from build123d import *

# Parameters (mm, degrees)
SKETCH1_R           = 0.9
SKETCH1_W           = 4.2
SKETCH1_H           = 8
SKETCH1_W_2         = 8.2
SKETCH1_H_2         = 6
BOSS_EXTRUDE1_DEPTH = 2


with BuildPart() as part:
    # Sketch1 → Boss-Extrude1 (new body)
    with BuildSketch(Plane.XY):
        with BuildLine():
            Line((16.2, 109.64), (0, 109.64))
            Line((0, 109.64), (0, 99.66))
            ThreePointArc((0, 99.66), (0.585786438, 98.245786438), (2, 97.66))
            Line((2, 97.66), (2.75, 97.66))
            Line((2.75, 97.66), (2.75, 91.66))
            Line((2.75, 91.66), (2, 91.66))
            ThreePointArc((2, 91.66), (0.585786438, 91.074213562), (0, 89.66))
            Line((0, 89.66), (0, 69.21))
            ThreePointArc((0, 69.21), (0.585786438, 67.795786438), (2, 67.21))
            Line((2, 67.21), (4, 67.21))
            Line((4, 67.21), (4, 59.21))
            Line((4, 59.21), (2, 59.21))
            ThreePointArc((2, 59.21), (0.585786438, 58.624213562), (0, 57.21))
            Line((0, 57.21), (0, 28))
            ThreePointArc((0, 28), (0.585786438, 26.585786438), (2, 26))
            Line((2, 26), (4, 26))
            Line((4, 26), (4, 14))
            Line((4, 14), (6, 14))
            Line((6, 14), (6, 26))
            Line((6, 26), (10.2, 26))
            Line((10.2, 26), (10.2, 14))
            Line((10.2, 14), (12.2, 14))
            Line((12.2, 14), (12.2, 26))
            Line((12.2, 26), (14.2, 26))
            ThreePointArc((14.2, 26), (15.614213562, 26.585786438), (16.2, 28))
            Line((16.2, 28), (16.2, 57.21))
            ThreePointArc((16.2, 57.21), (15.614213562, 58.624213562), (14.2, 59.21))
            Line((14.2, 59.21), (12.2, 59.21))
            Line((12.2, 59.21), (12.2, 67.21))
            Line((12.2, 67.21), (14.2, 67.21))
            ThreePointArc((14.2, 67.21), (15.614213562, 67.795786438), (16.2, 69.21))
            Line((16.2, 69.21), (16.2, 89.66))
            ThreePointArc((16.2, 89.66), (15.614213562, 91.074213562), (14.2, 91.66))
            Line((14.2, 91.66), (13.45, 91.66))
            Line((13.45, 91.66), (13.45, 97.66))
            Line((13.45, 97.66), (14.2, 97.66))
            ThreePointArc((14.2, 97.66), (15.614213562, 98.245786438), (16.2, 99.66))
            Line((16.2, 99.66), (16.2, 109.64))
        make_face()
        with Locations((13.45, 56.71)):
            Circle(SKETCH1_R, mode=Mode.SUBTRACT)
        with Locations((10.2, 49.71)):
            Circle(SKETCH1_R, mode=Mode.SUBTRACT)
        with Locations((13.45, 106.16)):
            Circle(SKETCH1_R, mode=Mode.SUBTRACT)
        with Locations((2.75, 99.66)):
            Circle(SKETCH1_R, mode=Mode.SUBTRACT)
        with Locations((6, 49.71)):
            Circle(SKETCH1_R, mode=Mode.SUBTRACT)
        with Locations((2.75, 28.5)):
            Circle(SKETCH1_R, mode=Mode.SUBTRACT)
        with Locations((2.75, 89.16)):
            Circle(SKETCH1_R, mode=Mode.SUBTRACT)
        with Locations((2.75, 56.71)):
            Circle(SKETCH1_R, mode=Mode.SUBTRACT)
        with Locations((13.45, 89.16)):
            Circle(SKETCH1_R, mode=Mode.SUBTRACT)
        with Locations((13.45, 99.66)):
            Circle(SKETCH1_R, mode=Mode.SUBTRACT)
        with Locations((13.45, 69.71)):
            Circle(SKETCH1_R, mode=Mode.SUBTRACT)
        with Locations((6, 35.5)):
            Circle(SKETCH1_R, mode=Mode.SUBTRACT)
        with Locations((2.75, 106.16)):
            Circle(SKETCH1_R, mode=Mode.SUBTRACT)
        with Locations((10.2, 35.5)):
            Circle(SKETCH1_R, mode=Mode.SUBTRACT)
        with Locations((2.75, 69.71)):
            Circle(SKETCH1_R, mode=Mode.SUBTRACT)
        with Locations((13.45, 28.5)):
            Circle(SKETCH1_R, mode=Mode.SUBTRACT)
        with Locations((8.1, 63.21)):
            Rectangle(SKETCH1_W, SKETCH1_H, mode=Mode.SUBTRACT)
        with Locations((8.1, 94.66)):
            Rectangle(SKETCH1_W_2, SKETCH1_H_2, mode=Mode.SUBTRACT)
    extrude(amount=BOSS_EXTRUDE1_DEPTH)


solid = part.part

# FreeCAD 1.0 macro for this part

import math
import FreeCAD as App
import Part
import Sketcher
from FreeCAD import Vector
Q = App.Units.Quantity


def add_polygon(sketch, points):
    """Adds a closed chain of lines whose ends are joined by coincident constraints."""
    first, n = sketch.GeometryCount, len(points)
    for a, b in zip(points, points[1:] + points[:1]):
        sketch.addGeometry(Part.LineSegment(App.Vector(*a, 0), App.Vector(*b, 0)), False)
    for i in range(n):
        sketch.addConstraint(Sketcher.Constraint("Coincident", first + i, 2, first + (i + 1) % n, 1))

doc = App.newDocument("Part")
params = doc.addObject("Spreadsheet::Sheet", "Params")
for row, (alias, value) in enumerate([
    ("sketch1_radius", "2 mm"),
    ("sketch1_diameter", "1.8 mm"),
    ("sketch1_width", "2 mm"),
    ("sketch1_height", "6 mm"),
    ("sketch1_height2", "8 mm"),
    ("pad1_length", "2 mm"),
], start=1):
    params.set(f"A{row}", alias)
    params.set(f"B{row}", "=" + value)
    params.setAlias(f"B{row}", alias)

body = doc.addObject("PartDesign::Body", "Body")

# Sketch on XY plane
sketch1 = body.newObject("Sketcher::SketchObject", "Sketch")
sketch1.AttachmentSupport = (doc.getObject("XY_Plane"), [""])
sketch1.MapMode = "FlatFace"
sketch1.addGeometry(Part.LineSegment(Vector(16.2, 109.6, 0), Vector(0, 109.6, 0)), False)  # 0
sketch1.addGeometry(Part.LineSegment(Vector(0, 109.6, 0), Vector(0, 99.7, 0)), False)  # 1
sketch1.addGeometry(Part.ArcOfCircle(Part.Circle(Vector(2, 99.7, 0), Vector(0, 0, 1), 2), math.radians(-180), math.radians(-90)), False)  # 2
sketch1.addGeometry(Part.LineSegment(Vector(2, 97.7, 0), Vector(2.8, 97.7, 0)), False)  # 3
sketch1.addGeometry(Part.LineSegment(Vector(2.8, 97.7, 0), Vector(2.8, 91.7, 0)), False)  # 4
sketch1.addGeometry(Part.LineSegment(Vector(2.8, 91.7, 0), Vector(2, 91.7, 0)), False)  # 5
sketch1.addGeometry(Part.ArcOfCircle(Part.Circle(Vector(2, 89.7, 0), Vector(0, 0, 1), 2), math.radians(90), math.radians(180)), False)  # 6
sketch1.addGeometry(Part.LineSegment(Vector(0, 89.7, 0), Vector(0, 69.2, 0)), False)  # 7
sketch1.addGeometry(Part.ArcOfCircle(Part.Circle(Vector(2, 69.2, 0), Vector(0, 0, 1), 2), math.radians(-180), math.radians(-90)), False)  # 8
sketch1.addGeometry(Part.LineSegment(Vector(2, 67.2, 0), Vector(4, 67.2, 0)), False)  # 9
sketch1.addGeometry(Part.LineSegment(Vector(4, 67.2, 0), Vector(4, 59.2, 0)), False)  # 10
sketch1.addGeometry(Part.LineSegment(Vector(4, 59.2, 0), Vector(2, 59.2, 0)), False)  # 11
sketch1.addGeometry(Part.ArcOfCircle(Part.Circle(Vector(2, 57.2, 0), Vector(0, 0, 1), 2), math.radians(90), math.radians(180)), False)  # 12
sketch1.addGeometry(Part.LineSegment(Vector(0, 57.2, 0), Vector(0, 28, 0)), False)  # 13
sketch1.addGeometry(Part.ArcOfCircle(Part.Circle(Vector(2, 28, 0), Vector(0, 0, 1), 2), math.radians(-180), math.radians(-90)), False)  # 14
sketch1.addGeometry(Part.LineSegment(Vector(2, 26, 0), Vector(4, 26, 0)), False)  # 15
sketch1.addGeometry(Part.LineSegment(Vector(4, 26, 0), Vector(4, 14, 0)), False)  # 16
sketch1.addGeometry(Part.LineSegment(Vector(4, 14, 0), Vector(6, 14, 0)), False)  # 17
sketch1.addGeometry(Part.LineSegment(Vector(6, 14, 0), Vector(6, 26, 0)), False)  # 18
sketch1.addGeometry(Part.LineSegment(Vector(6, 26, 0), Vector(10.2, 26, 0)), False)  # 19
sketch1.addGeometry(Part.LineSegment(Vector(10.2, 26, 0), Vector(10.2, 14, 0)), False)  # 20
sketch1.addGeometry(Part.LineSegment(Vector(10.2, 14, 0), Vector(12.2, 14, 0)), False)  # 21
sketch1.addGeometry(Part.LineSegment(Vector(12.2, 14, 0), Vector(12.2, 26, 0)), False)  # 22
sketch1.addGeometry(Part.LineSegment(Vector(12.2, 26, 0), Vector(14.2, 26, 0)), False)  # 23
sketch1.addGeometry(Part.ArcOfCircle(Part.Circle(Vector(14.2, 28, 0), Vector(0, 0, 1), 2), math.radians(-90), math.radians(0)), False)  # 24
sketch1.addGeometry(Part.LineSegment(Vector(16.2, 28, 0), Vector(16.2, 57.2, 0)), False)  # 25
sketch1.addGeometry(Part.ArcOfCircle(Part.Circle(Vector(14.2, 57.2, 0), Vector(0, 0, 1), 2), math.radians(0), math.radians(90)), False)  # 26
sketch1.addGeometry(Part.LineSegment(Vector(14.2, 59.2, 0), Vector(12.2, 59.2, 0)), False)  # 27
sketch1.addGeometry(Part.LineSegment(Vector(12.2, 59.2, 0), Vector(12.2, 67.2, 0)), False)  # 28
sketch1.addGeometry(Part.LineSegment(Vector(12.2, 67.2, 0), Vector(14.2, 67.2, 0)), False)  # 29
sketch1.addGeometry(Part.ArcOfCircle(Part.Circle(Vector(14.2, 69.2, 0), Vector(0, 0, 1), 2), math.radians(-90), math.radians(0)), False)  # 30
sketch1.addGeometry(Part.LineSegment(Vector(16.2, 69.2, 0), Vector(16.2, 89.7, 0)), False)  # 31
sketch1.addGeometry(Part.ArcOfCircle(Part.Circle(Vector(14.2, 89.7, 0), Vector(0, 0, 1), 2), math.radians(0), math.radians(90)), False)  # 32
sketch1.addGeometry(Part.LineSegment(Vector(14.2, 91.7, 0), Vector(13.4, 91.7, 0)), False)  # 33
sketch1.addGeometry(Part.LineSegment(Vector(13.4, 91.7, 0), Vector(13.4, 97.7, 0)), False)  # 34
sketch1.addGeometry(Part.LineSegment(Vector(13.4, 97.7, 0), Vector(14.2, 97.7, 0)), False)  # 35
sketch1.addGeometry(Part.ArcOfCircle(Part.Circle(Vector(14.2, 99.7, 0), Vector(0, 0, 1), 2), math.radians(-90), math.radians(0)), False)  # 36
sketch1.addGeometry(Part.LineSegment(Vector(16.2, 99.7, 0), Vector(16.2, 109.6, 0)), False)  # 37
sketch1.addGeometry(Part.Circle(Vector(2.8, 28.5, 0), Vector(0, 0, 1), 0.9), False)  # 38
sketch1.addGeometry(Part.Circle(Vector(6, 35.5, 0), Vector(0, 0, 1), 0.9), False)  # 39
sketch1.addGeometry(Part.Circle(Vector(2.8, 56.7, 0), Vector(0, 0, 1), 0.9), False)  # 40
sketch1.addGeometry(Part.Circle(Vector(6, 49.7, 0), Vector(0, 0, 1), 0.9), False)  # 41
sketch1.addGeometry(Part.Circle(Vector(10.2, 35.5, 0), Vector(0, 0, 1), 0.9), False)  # 42
sketch1.addGeometry(Part.Circle(Vector(13.4, 28.5, 0), Vector(0, 0, 1), 0.9), False)  # 43
sketch1.addGeometry(Part.Circle(Vector(10.2, 49.7, 0), Vector(0, 0, 1), 0.9), False)  # 44
add_polygon(sketch1, [(10.2, 59.2), (6, 59.2), (6, 67.2), (10.2, 67.2)])  # lines 45-48
sketch1.addGeometry(Part.Circle(Vector(13.4, 56.7, 0), Vector(0, 0, 1), 0.9), False)  # 49
sketch1.addGeometry(Part.Circle(Vector(2.8, 69.7, 0), Vector(0, 0, 1), 0.9), False)  # 50
sketch1.addGeometry(Part.Circle(Vector(2.8, 89.2, 0), Vector(0, 0, 1), 0.9), False)  # 51
sketch1.addGeometry(Part.Circle(Vector(2.8, 99.7, 0), Vector(0, 0, 1), 0.9), False)  # 52
sketch1.addGeometry(Part.Circle(Vector(2.8, 106.2, 0), Vector(0, 0, 1), 0.9), False)  # 53
sketch1.addGeometry(Part.Circle(Vector(13.4, 69.7, 0), Vector(0, 0, 1), 0.9), False)  # 54
add_polygon(sketch1, [(12.2, 91.7), (4, 91.7), (4, 97.7), (12.2, 97.7)])  # lines 55-58
sketch1.addGeometry(Part.Circle(Vector(13.4, 89.2, 0), Vector(0, 0, 1), 0.9), False)  # 59
sketch1.addGeometry(Part.Circle(Vector(13.4, 99.7, 0), Vector(0, 0, 1), 0.9), False)  # 60
sketch1.addGeometry(Part.Circle(Vector(13.4, 106.2, 0), Vector(0, 0, 1), 0.9), False)  # 61
sketch1.addConstraint([
    Sketcher.Constraint("Coincident", 0, 2, 1, 1),
    Sketcher.Constraint("Tangent", 1, 2, 2, 1),
    Sketcher.Constraint("Tangent", 2, 2, 3, 1),
    Sketcher.Constraint("Coincident", 3, 2, 4, 1),
    Sketcher.Constraint("Coincident", 4, 2, 5, 1),
    Sketcher.Constraint("Tangent", 5, 2, 6, 1),
    Sketcher.Constraint("Tangent", 6, 2, 7, 1),
    Sketcher.Constraint("Tangent", 7, 2, 8, 1),
    Sketcher.Constraint("Tangent", 8, 2, 9, 1),
    Sketcher.Constraint("Coincident", 9, 2, 10, 1),
    Sketcher.Constraint("Coincident", 10, 2, 11, 1),
    Sketcher.Constraint("Tangent", 11, 2, 12, 1),
    Sketcher.Constraint("Tangent", 12, 2, 13, 1),
    Sketcher.Constraint("Tangent", 13, 2, 14, 1),
    Sketcher.Constraint("Tangent", 14, 2, 15, 1),
    Sketcher.Constraint("Coincident", 15, 2, 16, 1),
    Sketcher.Constraint("Coincident", 16, 2, 17, 1),
    Sketcher.Constraint("Coincident", 17, 2, 18, 1),
    Sketcher.Constraint("Coincident", 18, 2, 19, 1),
    Sketcher.Constraint("Coincident", 19, 2, 20, 1),
    Sketcher.Constraint("Coincident", 20, 2, 21, 1),
    Sketcher.Constraint("Coincident", 21, 2, 22, 1),
    Sketcher.Constraint("Coincident", 22, 2, 23, 1),
    Sketcher.Constraint("Tangent", 23, 2, 24, 1),
    Sketcher.Constraint("Tangent", 24, 2, 25, 1),
    Sketcher.Constraint("Tangent", 25, 2, 26, 1),
    Sketcher.Constraint("Tangent", 26, 2, 27, 1),
    Sketcher.Constraint("Coincident", 27, 2, 28, 1),
    Sketcher.Constraint("Coincident", 28, 2, 29, 1),
    Sketcher.Constraint("Tangent", 29, 2, 30, 1),
    Sketcher.Constraint("Tangent", 30, 2, 31, 1),
    Sketcher.Constraint("Tangent", 31, 2, 32, 1),
    Sketcher.Constraint("Tangent", 32, 2, 33, 1),
    Sketcher.Constraint("Coincident", 33, 2, 34, 1),
    Sketcher.Constraint("Coincident", 34, 2, 35, 1),
    Sketcher.Constraint("Tangent", 35, 2, 36, 1),
    Sketcher.Constraint("Tangent", 36, 2, 37, 1),
    Sketcher.Constraint("Coincident", 37, 2, 0, 1),
    Sketcher.Constraint("Horizontal", 0),
    Sketcher.Constraint("Vertical", 1),
    Sketcher.Constraint("Horizontal", 3),
    Sketcher.Constraint("Vertical", 4),
    Sketcher.Constraint("Horizontal", 5),
    Sketcher.Constraint("Vertical", 7),
    Sketcher.Constraint("Horizontal", 9),
    Sketcher.Constraint("Vertical", 10),
    Sketcher.Constraint("Horizontal", 11),
    Sketcher.Constraint("Vertical", 13),
    Sketcher.Constraint("Horizontal", 15),
    Sketcher.Constraint("Vertical", 16),
    Sketcher.Constraint("Horizontal", 17),
    Sketcher.Constraint("Vertical", 18),
    Sketcher.Constraint("Horizontal", 19),
    Sketcher.Constraint("Vertical", 20),
    Sketcher.Constraint("Horizontal", 21),
    Sketcher.Constraint("Vertical", 22),
    Sketcher.Constraint("Horizontal", 23),
    Sketcher.Constraint("Vertical", 25),
    Sketcher.Constraint("Horizontal", 27),
    Sketcher.Constraint("Vertical", 28),
    Sketcher.Constraint("Horizontal", 29),
    Sketcher.Constraint("Vertical", 31),
    Sketcher.Constraint("Horizontal", 33),
    Sketcher.Constraint("Vertical", 34),
    Sketcher.Constraint("Horizontal", 35),
    Sketcher.Constraint("Vertical", 37),
    Sketcher.Constraint("Horizontal", 45),
    Sketcher.Constraint("Vertical", 46),
    Sketcher.Constraint("Horizontal", 47),
    Sketcher.Constraint("Vertical", 48),
    Sketcher.Constraint("Horizontal", 55),
    Sketcher.Constraint("Vertical", 56),
    Sketcher.Constraint("Horizontal", 57),
    Sketcher.Constraint("Vertical", 58),
    Sketcher.Constraint("Equal", 2, 6),
    Sketcher.Constraint("Equal", 6, 8),
    Sketcher.Constraint("Equal", 8, 12),
    Sketcher.Constraint("Equal", 12, 14),
    Sketcher.Constraint("Equal", 14, 24),
    Sketcher.Constraint("Equal", 24, 26),
    Sketcher.Constraint("Equal", 26, 30),
    Sketcher.Constraint("Equal", 30, 32),
    Sketcher.Constraint("Equal", 32, 36),
    Sketcher.Constraint("Equal", 38, 39),
    Sketcher.Constraint("Equal", 39, 40),
    Sketcher.Constraint("Equal", 40, 41),
    Sketcher.Constraint("Equal", 41, 42),
    Sketcher.Constraint("Equal", 42, 43),
    Sketcher.Constraint("Equal", 43, 44),
    Sketcher.Constraint("Equal", 44, 49),
    Sketcher.Constraint("Equal", 49, 50),
    Sketcher.Constraint("Equal", 50, 51),
    Sketcher.Constraint("Equal", 51, 52),
    Sketcher.Constraint("Equal", 52, 53),
    Sketcher.Constraint("Equal", 53, 54),
    Sketcher.Constraint("Equal", 54, 59),
    Sketcher.Constraint("Equal", 59, 60),
    Sketcher.Constraint("Equal", 60, 61),
    Sketcher.Constraint("PointOnObject", 0, 2, -2),
    Sketcher.Constraint("PointOnObject", 6, 2, -2),
    Sketcher.Constraint("PointOnObject", 12, 2, -2),
    Sketcher.Constraint("Horizontal", 14, 3, 24, 3),
    Sketcher.Constraint("Horizontal", 12, 3, 26, 3),
    Sketcher.Constraint("Horizontal", 8, 3, 30, 3),
    Sketcher.Constraint("Horizontal", 6, 3, 32, 3),
    Sketcher.Constraint("Horizontal", 2, 3, 36, 3),
    Sketcher.Constraint("Horizontal", 39, 3, 42, 3),
    Sketcher.Constraint("Horizontal", 38, 3, 43, 3),
    Sketcher.Constraint("Horizontal", 41, 3, 44, 3),
    Sketcher.Constraint("Horizontal", 40, 3, 49, 3),
    Sketcher.Constraint("Horizontal", 36, 3, 52, 3),
    Sketcher.Constraint("Horizontal", 50, 3, 54, 3),
    Sketcher.Constraint("Horizontal", 51, 3, 59, 3),
    Sketcher.Constraint("Horizontal", 52, 3, 60, 3),
    Sketcher.Constraint("Horizontal", 53, 3, 61, 3),
    Sketcher.Constraint("Horizontal", 15, 2, 18, 2),
    Sketcher.Constraint("Horizontal", 17, 2, 20, 2),
    Sketcher.Constraint("Horizontal", 27, 2, 45, 2),
    Sketcher.Constraint("Horizontal", 29, 2, 46, 2),
    Sketcher.Constraint("Horizontal", 33, 2, 55, 2),
    Sketcher.Constraint("Horizontal", 35, 2, 56, 2),
    Sketcher.Constraint("Vertical", 26, 3, 30, 3),
    Sketcher.Constraint("Vertical", 32, 3, 36, 3),
    Sketcher.Constraint("Vertical", 38, 3, 40, 3),
    Sketcher.Constraint("Vertical", 39, 3, 41, 3),
    Sketcher.Constraint("Vertical", 42, 3, 44, 3),
    Sketcher.Constraint("Vertical", 43, 3, 49, 3),
    Sketcher.Constraint("Vertical", 40, 3, 50, 3),
    Sketcher.Constraint("Vertical", 50, 3, 51, 3),
    Sketcher.Constraint("Vertical", 51, 3, 52, 3),
    Sketcher.Constraint("Vertical", 52, 3, 53, 3),
    Sketcher.Constraint("Vertical", 49, 3, 54, 3),
    Sketcher.Constraint("Vertical", 54, 3, 59, 3),
    Sketcher.Constraint("Vertical", 59, 3, 60, 3),
    Sketcher.Constraint("Vertical", 60, 3, 61, 3),
    Sketcher.Constraint("Vertical", 53, 3, 3, 2),
    Sketcher.Constraint("Vertical", 10, 2, 15, 2),
    Sketcher.Constraint("Vertical", 41, 3, 17, 2),
    Sketcher.Constraint("Vertical", 44, 3, 19, 2),
    Sketcher.Constraint("Vertical", 22, 2, 27, 2),
    Sketcher.Constraint("Vertical", 61, 3, 33, 2),
    Sketcher.Constraint("Vertical", 18, 2, 45, 2),
    Sketcher.Constraint("Vertical", 20, 2, 47, 2),
    Sketcher.Constraint("Vertical", 16, 2, 55, 2),
    Sketcher.Constraint("Vertical", 28, 2, 57, 2),
    Sketcher.Constraint("Equal", 15, 17),
    Sketcher.Constraint("Equal", 17, 21),
    Sketcher.Constraint("Equal", 21, 23),
    Sketcher.Constraint("Equal", 5, 33),
    Sketcher.Constraint("Radius", 2, Q("2 mm")),
    Sketcher.Constraint("Diameter", 38, Q("1.8 mm")),
    Sketcher.Constraint("DistanceX", 9, 1, 9, 2, Q("2 mm")),
    Sketcher.Constraint("DistanceY", 4, 2, 4, 1, Q("6 mm")),
    Sketcher.Constraint("DistanceY", 10, 2, 10, 1, Q("8 mm")),
    Sketcher.Constraint("DistanceY", 16, 2, 16, 1, Q("12 mm")),
    Sketcher.Constraint("DistanceX", 0, 2, 0, 1, Q("16.2 mm")),
    Sketcher.Constraint("DistanceY", -1, 1, 14, 3, Q("28 mm")),
    Sketcher.Constraint("DistanceX", 3, 1, 3, 2, Q("0.75 mm")),
    Sketcher.Constraint("DistanceY", 1, 2, 1, 1, Q("9.98 mm")),
    Sketcher.Constraint("DistanceY", 7, 2, 7, 1, Q("20.45 mm")),
    Sketcher.Constraint("DistanceY", 13, 2, 13, 1, Q("29.21 mm")),
    Sketcher.Constraint("DistanceY", -1, 1, 38, 3, Q("28.5 mm")),
    Sketcher.Constraint("DistanceY", -1, 1, 39, 3, Q("35.5 mm")),
    Sketcher.Constraint("DistanceY", -1, 1, 40, 3, Q("56.71 mm")),
    Sketcher.Constraint("DistanceY", -1, 1, 41, 3, Q("49.71 mm")),
    Sketcher.Constraint("DistanceY", -1, 1, 50, 3, Q("69.71 mm")),
    Sketcher.Constraint("DistanceY", -1, 1, 51, 3, Q("89.16 mm")),
    Sketcher.Constraint("DistanceY", -1, 1, 53, 3, Q("106.16 mm")),
])
sketch1.setExpression("Constraints[157]", "Params.sketch1_radius")
sketch1.setExpression("Constraints[158]", "Params.sketch1_diameter")
sketch1.setExpression("Constraints[159]", "Params.sketch1_width")
sketch1.setExpression("Constraints[160]", "Params.sketch1_height")
sketch1.setExpression("Constraints[161]", "Params.sketch1_height2")
pad1 = body.newObject("PartDesign::Pad", "Pad")
pad1.Profile = sketch1
pad1.setExpression("Length", "Params.pad1_length")

doc.recompute()
